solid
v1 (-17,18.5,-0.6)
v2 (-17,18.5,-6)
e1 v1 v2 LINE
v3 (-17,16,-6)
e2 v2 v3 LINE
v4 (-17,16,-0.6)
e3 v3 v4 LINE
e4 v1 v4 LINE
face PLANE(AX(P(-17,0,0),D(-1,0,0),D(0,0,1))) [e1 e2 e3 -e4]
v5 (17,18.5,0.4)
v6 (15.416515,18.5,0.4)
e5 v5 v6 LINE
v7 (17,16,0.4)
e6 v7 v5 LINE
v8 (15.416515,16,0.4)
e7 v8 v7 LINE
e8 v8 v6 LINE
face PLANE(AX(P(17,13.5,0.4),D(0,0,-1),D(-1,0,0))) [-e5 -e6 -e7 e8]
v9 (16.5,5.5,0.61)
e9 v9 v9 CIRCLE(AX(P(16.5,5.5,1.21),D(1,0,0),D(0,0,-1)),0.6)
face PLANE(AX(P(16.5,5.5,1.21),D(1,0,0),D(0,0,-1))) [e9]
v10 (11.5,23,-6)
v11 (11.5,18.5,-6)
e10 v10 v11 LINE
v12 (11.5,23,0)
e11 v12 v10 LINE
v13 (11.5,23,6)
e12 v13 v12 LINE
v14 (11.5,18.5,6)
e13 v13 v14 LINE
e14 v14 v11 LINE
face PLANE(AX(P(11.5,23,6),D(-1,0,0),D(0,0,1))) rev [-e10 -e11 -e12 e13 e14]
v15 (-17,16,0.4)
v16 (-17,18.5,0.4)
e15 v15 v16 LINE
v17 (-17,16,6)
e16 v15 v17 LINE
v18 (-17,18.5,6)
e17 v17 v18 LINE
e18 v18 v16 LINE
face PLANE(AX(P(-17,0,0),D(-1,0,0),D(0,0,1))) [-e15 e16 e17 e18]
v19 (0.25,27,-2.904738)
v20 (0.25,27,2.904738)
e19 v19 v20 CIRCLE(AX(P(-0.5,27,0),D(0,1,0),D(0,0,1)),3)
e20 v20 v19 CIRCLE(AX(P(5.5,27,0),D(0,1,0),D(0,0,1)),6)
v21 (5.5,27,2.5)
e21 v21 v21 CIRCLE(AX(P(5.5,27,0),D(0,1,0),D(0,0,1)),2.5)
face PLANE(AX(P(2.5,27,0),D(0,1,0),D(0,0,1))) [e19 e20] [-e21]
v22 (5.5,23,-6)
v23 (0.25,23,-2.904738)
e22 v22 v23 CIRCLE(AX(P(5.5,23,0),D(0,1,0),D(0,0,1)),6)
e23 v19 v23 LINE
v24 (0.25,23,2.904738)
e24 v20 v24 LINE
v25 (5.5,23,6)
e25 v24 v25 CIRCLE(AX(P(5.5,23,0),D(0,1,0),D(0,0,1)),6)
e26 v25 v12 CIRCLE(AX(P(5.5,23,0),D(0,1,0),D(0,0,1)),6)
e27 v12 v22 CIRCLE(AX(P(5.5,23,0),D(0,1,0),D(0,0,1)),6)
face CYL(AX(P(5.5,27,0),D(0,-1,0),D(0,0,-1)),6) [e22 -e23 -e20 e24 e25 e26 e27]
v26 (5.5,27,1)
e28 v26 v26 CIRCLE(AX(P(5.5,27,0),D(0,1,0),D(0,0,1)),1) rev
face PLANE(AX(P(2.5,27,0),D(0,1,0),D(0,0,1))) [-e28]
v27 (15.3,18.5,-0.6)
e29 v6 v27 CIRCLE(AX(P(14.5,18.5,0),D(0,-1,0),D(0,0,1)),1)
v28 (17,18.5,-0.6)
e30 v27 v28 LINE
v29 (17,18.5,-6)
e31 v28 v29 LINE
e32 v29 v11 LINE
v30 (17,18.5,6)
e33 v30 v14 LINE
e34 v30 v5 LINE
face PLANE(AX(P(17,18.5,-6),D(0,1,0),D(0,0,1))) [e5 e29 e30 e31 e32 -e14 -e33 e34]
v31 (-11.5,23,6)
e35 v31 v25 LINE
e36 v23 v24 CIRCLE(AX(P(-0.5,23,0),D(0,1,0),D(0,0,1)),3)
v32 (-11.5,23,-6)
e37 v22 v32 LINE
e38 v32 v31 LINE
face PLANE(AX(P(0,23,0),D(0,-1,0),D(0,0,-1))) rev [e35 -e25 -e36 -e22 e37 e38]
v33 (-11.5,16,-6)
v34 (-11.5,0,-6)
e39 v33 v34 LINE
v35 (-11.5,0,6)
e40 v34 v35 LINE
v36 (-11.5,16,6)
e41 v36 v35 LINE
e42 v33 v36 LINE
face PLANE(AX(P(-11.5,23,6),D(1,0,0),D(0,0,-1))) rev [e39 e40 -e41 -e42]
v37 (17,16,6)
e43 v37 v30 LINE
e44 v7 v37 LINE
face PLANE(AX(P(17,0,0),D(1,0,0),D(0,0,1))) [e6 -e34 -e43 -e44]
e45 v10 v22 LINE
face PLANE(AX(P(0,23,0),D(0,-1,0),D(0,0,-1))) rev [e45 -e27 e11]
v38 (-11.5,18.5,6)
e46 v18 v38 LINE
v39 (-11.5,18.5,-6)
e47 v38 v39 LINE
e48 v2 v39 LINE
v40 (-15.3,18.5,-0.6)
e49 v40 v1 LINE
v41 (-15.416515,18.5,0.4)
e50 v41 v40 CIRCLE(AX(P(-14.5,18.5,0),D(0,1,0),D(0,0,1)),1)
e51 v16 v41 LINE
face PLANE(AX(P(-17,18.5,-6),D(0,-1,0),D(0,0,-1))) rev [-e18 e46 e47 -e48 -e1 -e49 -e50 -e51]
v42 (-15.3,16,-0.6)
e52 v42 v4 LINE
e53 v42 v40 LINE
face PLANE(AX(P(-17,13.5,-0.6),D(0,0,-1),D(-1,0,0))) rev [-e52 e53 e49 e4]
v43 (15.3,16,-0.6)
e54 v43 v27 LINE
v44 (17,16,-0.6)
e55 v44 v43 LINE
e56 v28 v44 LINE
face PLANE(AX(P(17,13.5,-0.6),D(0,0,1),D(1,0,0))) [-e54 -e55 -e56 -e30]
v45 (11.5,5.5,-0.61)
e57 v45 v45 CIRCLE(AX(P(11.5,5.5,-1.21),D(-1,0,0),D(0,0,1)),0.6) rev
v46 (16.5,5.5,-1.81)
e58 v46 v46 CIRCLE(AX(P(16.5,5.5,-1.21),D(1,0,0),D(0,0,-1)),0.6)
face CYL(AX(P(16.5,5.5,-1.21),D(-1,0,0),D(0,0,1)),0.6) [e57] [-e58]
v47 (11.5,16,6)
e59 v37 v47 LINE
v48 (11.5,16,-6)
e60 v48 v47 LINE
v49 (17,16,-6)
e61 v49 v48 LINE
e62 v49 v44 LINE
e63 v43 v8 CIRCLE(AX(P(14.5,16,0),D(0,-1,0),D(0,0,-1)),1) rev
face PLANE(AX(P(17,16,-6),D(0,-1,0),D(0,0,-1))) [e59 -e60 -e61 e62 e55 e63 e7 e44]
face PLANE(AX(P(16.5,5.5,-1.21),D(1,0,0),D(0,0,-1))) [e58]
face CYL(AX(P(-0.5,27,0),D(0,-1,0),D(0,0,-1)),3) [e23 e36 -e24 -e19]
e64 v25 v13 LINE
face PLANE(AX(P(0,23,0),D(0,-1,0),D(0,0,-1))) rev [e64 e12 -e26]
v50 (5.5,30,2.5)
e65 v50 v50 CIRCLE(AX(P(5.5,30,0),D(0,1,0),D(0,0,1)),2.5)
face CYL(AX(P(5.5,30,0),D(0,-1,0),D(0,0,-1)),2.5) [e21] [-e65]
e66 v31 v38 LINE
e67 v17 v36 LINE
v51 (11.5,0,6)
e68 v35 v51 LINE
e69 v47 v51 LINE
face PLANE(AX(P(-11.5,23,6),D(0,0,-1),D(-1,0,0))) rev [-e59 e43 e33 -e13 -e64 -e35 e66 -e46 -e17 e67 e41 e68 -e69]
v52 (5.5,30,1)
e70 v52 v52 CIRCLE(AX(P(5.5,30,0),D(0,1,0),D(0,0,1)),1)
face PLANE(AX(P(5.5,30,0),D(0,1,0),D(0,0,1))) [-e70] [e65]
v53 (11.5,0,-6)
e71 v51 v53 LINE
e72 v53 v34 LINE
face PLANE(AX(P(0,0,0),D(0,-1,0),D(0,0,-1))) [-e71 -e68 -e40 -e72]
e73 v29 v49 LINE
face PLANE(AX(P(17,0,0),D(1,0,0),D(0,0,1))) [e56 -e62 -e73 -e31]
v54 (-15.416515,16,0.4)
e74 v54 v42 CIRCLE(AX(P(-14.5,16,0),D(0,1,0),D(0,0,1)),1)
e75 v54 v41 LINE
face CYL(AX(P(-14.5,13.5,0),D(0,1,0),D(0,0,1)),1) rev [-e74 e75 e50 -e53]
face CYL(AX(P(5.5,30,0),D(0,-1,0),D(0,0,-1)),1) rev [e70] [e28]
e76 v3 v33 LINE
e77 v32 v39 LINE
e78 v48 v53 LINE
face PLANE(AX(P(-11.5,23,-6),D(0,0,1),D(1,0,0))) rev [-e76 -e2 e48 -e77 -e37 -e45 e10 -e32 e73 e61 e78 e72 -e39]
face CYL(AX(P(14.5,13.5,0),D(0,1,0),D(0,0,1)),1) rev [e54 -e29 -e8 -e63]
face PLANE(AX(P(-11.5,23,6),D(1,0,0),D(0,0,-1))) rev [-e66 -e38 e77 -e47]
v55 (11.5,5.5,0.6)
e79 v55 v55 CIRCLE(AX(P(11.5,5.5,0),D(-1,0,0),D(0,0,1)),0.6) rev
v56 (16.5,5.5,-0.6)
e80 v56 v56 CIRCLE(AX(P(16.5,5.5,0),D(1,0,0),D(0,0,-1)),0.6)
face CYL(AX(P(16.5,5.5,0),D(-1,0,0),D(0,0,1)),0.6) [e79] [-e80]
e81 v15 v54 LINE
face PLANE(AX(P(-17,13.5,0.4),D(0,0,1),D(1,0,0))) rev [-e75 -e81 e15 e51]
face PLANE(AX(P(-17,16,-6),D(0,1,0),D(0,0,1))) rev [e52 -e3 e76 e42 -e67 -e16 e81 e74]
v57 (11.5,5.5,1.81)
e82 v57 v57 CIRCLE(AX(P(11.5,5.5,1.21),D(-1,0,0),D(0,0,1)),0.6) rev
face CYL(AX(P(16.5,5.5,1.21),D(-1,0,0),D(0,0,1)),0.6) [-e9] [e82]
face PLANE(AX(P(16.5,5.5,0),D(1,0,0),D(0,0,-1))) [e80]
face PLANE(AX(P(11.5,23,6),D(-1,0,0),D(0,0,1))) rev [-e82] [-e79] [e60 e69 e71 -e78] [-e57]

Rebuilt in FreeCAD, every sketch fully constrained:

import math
import FreeCAD as App
import Part
import Sketcher

V = App.Vector

doc = App.newDocument("Part")
body = doc.addObject("PartDesign::Body", "Body")

sketch1 = doc.addObject("Sketcher::SketchObject", "Sketch")
body.addObject(sketch1)
sketch1.AttachmentSupport = (doc.XZ_Plane, [""])
sketch1.MapMode = "FlatFace"
sketch1.addGeometry(Part.LineSegment(V(-12, -6, 0), V(-12, 6, 0)), False)
sketch1.addGeometry(Part.LineSegment(V(-12, 6, 0), V(12, 6, 0)), False)
sketch1.addGeometry(Part.LineSegment(V(12, 6, 0), V(12, -6, 0)), False)
sketch1.addGeometry(Part.LineSegment(V(12, -6, 0), V(-12, -6, 0)), False)
sketch1.addConstraint(Sketcher.Constraint("Coincident", 0, 2, 1, 1))
sketch1.addConstraint(Sketcher.Constraint("Coincident", 1, 2, 2, 1))
sketch1.addConstraint(Sketcher.Constraint("Coincident", 2, 2, 3, 1))
sketch1.addConstraint(Sketcher.Constraint("Coincident", 3, 2, 0, 1))
sketch1.addConstraint(Sketcher.Constraint("Vertical", 0))
sketch1.addConstraint(Sketcher.Constraint("Horizontal", 1))
sketch1.addConstraint(Sketcher.Constraint("Vertical", 2))
sketch1.addConstraint(Sketcher.Constraint("Horizontal", 3))
sketch1.addConstraint(Sketcher.Constraint("Symmetric", 0, 2, 2, 2, -1, 1))
sketch1.addConstraint(Sketcher.Constraint("DistanceX", 1, 1, 1, 2, 23.0))
sketch1.addConstraint(Sketcher.Constraint("DistanceY", 0, 1, 0, 2, 12.0))
pad1 = doc.addObject("PartDesign::Pad", "Pad")
body.addObject(pad1)
pad1.Profile = sketch1
pad1.Length = 23
pad1.Reversed = True

sketch2 = doc.addObject("Sketcher::SketchObject", "Sketch001")
body.addObject(sketch2)
sketch2.AttachmentSupport = (doc.YZ_Plane, [""])
sketch2.MapMode = "FlatFace"
sketch2.AttachmentOffset = App.Placement(V(0, 0, -11.5), App.Rotation())
sketch2.addGeometry(Part.LineSegment(V(18.5, -6, 0), V(16, -6, 0)), False)
sketch2.addGeometry(Part.LineSegment(V(16, -6, 0), V(16, 6, 0)), False)
sketch2.addGeometry(Part.LineSegment(V(16, 6, 0), V(18.5, 6, 0)), False)
sketch2.addGeometry(Part.LineSegment(V(18.5, 6, 0), V(18.5, -6, 0)), False)
sketch2.addConstraint(Sketcher.Constraint("Coincident", 0, 2, 1, 1))
sketch2.addConstraint(Sketcher.Constraint("Coincident", 1, 2, 2, 1))
sketch2.addConstraint(Sketcher.Constraint("Coincident", 2, 2, 3, 1))
sketch2.addConstraint(Sketcher.Constraint("Coincident", 3, 2, 0, 1))
sketch2.addConstraint(Sketcher.Constraint("Horizontal", 0))
sketch2.addConstraint(Sketcher.Constraint("Vertical", 1))
sketch2.addConstraint(Sketcher.Constraint("Horizontal", 2))
sketch2.addConstraint(Sketcher.Constraint("Vertical", 3))
sketch2.addConstraint(Sketcher.Constraint("DistanceY", 1, 1, 1, 2, 12.0))
sketch2.addConstraint(Sketcher.Constraint("DistanceX", 0, 2, 0, 1, 2.5))
sketch2.addConstraint(Sketcher.Constraint("DistanceX", -1, 1, 0, 2, 16.0))
sketch2.addConstraint(Sketcher.Constraint("DistanceY", 0, 2, -1, 1, 6.0))
pad2 = doc.addObject("PartDesign::Pad", "Pad001")
body.addObject(pad2)
pad2.Profile = sketch2
pad2.Length = 5.5
pad2.Reversed = True

sketch3 = doc.addObject("Sketcher::SketchObject", "Sketch002")
body.addObject(sketch3)
sketch3.AttachmentSupport = (doc.XZ_Plane, [""])
sketch3.MapMode = "FlatFace"
sketch3.AttachmentOffset = App.Placement(V(0, 0, -18.5), App.Rotation())
sketch3.addGeometry(Part.LineSegment(V(-15.3, -0.6, 0), V(-17, -0.6, 0)), False)
sketch3.addGeometry(Part.LineSegment(V(-17, -0.6, 0), V(-17, 0.4, 0)), False)
sketch3.addGeometry(Part.LineSegment(V(-17, 0.4, 0), V(-15.4, 0.4, 0)), False)
sketch3.addGeometry(Part.ArcOfCircle(Part.Circle(V(-14.5, 0, 0), V(0, 0, 1), 1), math.radians(-143), math.radians(156)), False)
sketch3.addConstraint(Sketcher.Constraint("Coincident", 0, 2, 1, 1))
sketch3.addConstraint(Sketcher.Constraint("Coincident", 1, 2, 2, 1))
sketch3.addConstraint(Sketcher.Constraint("Coincident", 2, 2, 3, 2))
sketch3.addConstraint(Sketcher.Constraint("Coincident", 3, 1, 0, 1))
sketch3.addConstraint(Sketcher.Constraint("Horizontal", 0))
sketch3.addConstraint(Sketcher.Constraint("Vertical", 1))
sketch3.addConstraint(Sketcher.Constraint("Horizontal", 2))
sketch3.addConstraint(Sketcher.Constraint("PointOnObject", 3, 3, -1))
sketch3.addConstraint(Sketcher.Constraint("Radius", 3, 1.0))
sketch3.addConstraint(Sketcher.Constraint("DistanceY", 1, 1, 1, 2, 1.0))
sketch3.addConstraint(Sketcher.Constraint("DistanceX", 0, 2, 0, 1, 1.7))
sketch3.addConstraint(Sketcher.Constraint("DistanceX", 0, 2, -1, 1, 17.0))
sketch3.addConstraint(Sketcher.Constraint("DistanceX", 3, 3, -1, 1, 14.5))
pocket1 = doc.addObject("PartDesign::Pocket", "Pocket")
body.addObject(pocket1)
pocket1.Profile = sketch3
pocket1.Length = 5
pocket1.Reversed = True
doc.recompute()

mirrored = doc.addObject("PartDesign::Mirrored", "Mirrored")
body.addObject(mirrored)
mirrored.Originals = [pad2, pocket1]
mirrored.MirrorPlane = (doc.YZ_Plane, [""])
body.Tip = mirrored

sketch4 = doc.addObject("Sketcher::SketchObject", "Sketch003")
body.addObject(sketch4)
sketch4.AttachmentSupport = (doc.XZ_Plane, [""])
sketch4.MapMode = "FlatFace"
sketch4.AttachmentOffset = App.Placement(V(0, 0, -23), App.Rotation())
sketch4.addGeometry(Part.ArcOfCircle(Part.Circle(V(5.5, 0, 0), V(0, 0, 1), 6), math.radians(-151), math.radians(151)), False)
sketch4.addGeometry(Part.ArcOfCircle(Part.Circle(V(-0.5, 0, 0), V(0, 0, 1), 3), math.radians(76), math.radians(284)), False)
sketch4.addConstraint(Sketcher.Constraint("Coincident", 0, 1, 1, 2))
sketch4.addConstraint(Sketcher.Constraint("Coincident", 1, 1, 0, 2))
sketch4.addConstraint(Sketcher.Constraint("Symmetric", 0, 1, 1, 1, -1))
sketch4.addConstraint(Sketcher.Constraint("Radius", 0, 6.0))
sketch4.addConstraint(Sketcher.Constraint("Radius", 1, 3.0))
sketch4.addConstraint(Sketcher.Constraint("DistanceX", 1, 3, 0, 3, 6.0))
sketch4.addConstraint(Sketcher.Constraint("DistanceX", -1, 1, 0, 3, 5.5))
pad3 = doc.addObject("PartDesign::Pad", "Pad002")
body.addObject(pad3)
pad3.Profile = sketch4
pad3.Length = 4
pad3.Reversed = True

sketch5 = doc.addObject("Sketcher::SketchObject", "Sketch004")
body.addObject(sketch5)
sketch5.AttachmentSupport = (doc.XZ_Plane, [""])
sketch5.MapMode = "FlatFace"
sketch5.AttachmentOffset = App.Placement(V(0, 0, -27), App.Rotation())
sketch5.addGeometry(Part.Circle(V(5.5, 0, 0), V(0, 0, 1), 2.5), False)
sketch5.addGeometry(Part.Circle(V(5.5, 0, 0), V(0, 0, 1), 1), False)
sketch5.addConstraint(Sketcher.Constraint("Coincident", 1, 3, 0, 3))
sketch5.addConstraint(Sketcher.Constraint("PointOnObject", 0, 3, -1))
sketch5.addConstraint(Sketcher.Constraint("Diameter", 0, 5.0))
sketch5.addConstraint(Sketcher.Constraint("Diameter", 1, 2.0))
sketch5.addConstraint(Sketcher.Constraint("DistanceX", -1, 1, 0, 3, 5.5))
pad4 = doc.addObject("PartDesign::Pad", "Pad003")
body.addObject(pad4)
pad4.Profile = sketch5
pad4.Length = 3
pad4.Reversed = True

sketch6 = doc.addObject("Sketcher::SketchObject", "Sketch005")
body.addObject(sketch6)
sketch6.AttachmentSupport = (doc.YZ_Plane, [""])
sketch6.MapMode = "FlatFace"
sketch6.AttachmentOffset = App.Placement(V(0, 0, 11.5), App.Rotation())
sketch6.addGeometry(Part.Circle(V(5.5, 0, 0), V(0, 0, 1), 0.6), False)
sketch6.addGeometry(Part.Circle(V(5.5, -1.2, 0), V(0, 0, 1), 0.6), False)
sketch6.addGeometry(Part.Circle(V(5.5, 1.2, 0), V(0, 0, 1), 0.6), False)
sketch6.addConstraint(Sketcher.Constraint("Equal", 0, 1))
sketch6.addConstraint(Sketcher.Constraint("Equal", 1, 2))
sketch6.addConstraint(Sketcher.Constraint("Symmetric", 1, 3, 2, 3, -1))
sketch6.addConstraint(Sketcher.Constraint("PointOnObject", 0, 3, -1))
sketch6.addConstraint(Sketcher.Constraint("Vertical", 0, 3, 1, 3))
sketch6.addConstraint(Sketcher.Constraint("Diameter", 0, 1.2))
sketch6.addConstraint(Sketcher.Constraint("DistanceX", -1, 1, 0, 3, 5.5))
sketch6.addConstraint(Sketcher.Constraint("DistanceY", 1, 3, -1, 1, 1.21))
pad5 = doc.addObject("PartDesign::Pad", "Pad004")
body.addObject(pad5)
pad5.Profile = sketch6
pad5.Length = 5

doc.recompute()
